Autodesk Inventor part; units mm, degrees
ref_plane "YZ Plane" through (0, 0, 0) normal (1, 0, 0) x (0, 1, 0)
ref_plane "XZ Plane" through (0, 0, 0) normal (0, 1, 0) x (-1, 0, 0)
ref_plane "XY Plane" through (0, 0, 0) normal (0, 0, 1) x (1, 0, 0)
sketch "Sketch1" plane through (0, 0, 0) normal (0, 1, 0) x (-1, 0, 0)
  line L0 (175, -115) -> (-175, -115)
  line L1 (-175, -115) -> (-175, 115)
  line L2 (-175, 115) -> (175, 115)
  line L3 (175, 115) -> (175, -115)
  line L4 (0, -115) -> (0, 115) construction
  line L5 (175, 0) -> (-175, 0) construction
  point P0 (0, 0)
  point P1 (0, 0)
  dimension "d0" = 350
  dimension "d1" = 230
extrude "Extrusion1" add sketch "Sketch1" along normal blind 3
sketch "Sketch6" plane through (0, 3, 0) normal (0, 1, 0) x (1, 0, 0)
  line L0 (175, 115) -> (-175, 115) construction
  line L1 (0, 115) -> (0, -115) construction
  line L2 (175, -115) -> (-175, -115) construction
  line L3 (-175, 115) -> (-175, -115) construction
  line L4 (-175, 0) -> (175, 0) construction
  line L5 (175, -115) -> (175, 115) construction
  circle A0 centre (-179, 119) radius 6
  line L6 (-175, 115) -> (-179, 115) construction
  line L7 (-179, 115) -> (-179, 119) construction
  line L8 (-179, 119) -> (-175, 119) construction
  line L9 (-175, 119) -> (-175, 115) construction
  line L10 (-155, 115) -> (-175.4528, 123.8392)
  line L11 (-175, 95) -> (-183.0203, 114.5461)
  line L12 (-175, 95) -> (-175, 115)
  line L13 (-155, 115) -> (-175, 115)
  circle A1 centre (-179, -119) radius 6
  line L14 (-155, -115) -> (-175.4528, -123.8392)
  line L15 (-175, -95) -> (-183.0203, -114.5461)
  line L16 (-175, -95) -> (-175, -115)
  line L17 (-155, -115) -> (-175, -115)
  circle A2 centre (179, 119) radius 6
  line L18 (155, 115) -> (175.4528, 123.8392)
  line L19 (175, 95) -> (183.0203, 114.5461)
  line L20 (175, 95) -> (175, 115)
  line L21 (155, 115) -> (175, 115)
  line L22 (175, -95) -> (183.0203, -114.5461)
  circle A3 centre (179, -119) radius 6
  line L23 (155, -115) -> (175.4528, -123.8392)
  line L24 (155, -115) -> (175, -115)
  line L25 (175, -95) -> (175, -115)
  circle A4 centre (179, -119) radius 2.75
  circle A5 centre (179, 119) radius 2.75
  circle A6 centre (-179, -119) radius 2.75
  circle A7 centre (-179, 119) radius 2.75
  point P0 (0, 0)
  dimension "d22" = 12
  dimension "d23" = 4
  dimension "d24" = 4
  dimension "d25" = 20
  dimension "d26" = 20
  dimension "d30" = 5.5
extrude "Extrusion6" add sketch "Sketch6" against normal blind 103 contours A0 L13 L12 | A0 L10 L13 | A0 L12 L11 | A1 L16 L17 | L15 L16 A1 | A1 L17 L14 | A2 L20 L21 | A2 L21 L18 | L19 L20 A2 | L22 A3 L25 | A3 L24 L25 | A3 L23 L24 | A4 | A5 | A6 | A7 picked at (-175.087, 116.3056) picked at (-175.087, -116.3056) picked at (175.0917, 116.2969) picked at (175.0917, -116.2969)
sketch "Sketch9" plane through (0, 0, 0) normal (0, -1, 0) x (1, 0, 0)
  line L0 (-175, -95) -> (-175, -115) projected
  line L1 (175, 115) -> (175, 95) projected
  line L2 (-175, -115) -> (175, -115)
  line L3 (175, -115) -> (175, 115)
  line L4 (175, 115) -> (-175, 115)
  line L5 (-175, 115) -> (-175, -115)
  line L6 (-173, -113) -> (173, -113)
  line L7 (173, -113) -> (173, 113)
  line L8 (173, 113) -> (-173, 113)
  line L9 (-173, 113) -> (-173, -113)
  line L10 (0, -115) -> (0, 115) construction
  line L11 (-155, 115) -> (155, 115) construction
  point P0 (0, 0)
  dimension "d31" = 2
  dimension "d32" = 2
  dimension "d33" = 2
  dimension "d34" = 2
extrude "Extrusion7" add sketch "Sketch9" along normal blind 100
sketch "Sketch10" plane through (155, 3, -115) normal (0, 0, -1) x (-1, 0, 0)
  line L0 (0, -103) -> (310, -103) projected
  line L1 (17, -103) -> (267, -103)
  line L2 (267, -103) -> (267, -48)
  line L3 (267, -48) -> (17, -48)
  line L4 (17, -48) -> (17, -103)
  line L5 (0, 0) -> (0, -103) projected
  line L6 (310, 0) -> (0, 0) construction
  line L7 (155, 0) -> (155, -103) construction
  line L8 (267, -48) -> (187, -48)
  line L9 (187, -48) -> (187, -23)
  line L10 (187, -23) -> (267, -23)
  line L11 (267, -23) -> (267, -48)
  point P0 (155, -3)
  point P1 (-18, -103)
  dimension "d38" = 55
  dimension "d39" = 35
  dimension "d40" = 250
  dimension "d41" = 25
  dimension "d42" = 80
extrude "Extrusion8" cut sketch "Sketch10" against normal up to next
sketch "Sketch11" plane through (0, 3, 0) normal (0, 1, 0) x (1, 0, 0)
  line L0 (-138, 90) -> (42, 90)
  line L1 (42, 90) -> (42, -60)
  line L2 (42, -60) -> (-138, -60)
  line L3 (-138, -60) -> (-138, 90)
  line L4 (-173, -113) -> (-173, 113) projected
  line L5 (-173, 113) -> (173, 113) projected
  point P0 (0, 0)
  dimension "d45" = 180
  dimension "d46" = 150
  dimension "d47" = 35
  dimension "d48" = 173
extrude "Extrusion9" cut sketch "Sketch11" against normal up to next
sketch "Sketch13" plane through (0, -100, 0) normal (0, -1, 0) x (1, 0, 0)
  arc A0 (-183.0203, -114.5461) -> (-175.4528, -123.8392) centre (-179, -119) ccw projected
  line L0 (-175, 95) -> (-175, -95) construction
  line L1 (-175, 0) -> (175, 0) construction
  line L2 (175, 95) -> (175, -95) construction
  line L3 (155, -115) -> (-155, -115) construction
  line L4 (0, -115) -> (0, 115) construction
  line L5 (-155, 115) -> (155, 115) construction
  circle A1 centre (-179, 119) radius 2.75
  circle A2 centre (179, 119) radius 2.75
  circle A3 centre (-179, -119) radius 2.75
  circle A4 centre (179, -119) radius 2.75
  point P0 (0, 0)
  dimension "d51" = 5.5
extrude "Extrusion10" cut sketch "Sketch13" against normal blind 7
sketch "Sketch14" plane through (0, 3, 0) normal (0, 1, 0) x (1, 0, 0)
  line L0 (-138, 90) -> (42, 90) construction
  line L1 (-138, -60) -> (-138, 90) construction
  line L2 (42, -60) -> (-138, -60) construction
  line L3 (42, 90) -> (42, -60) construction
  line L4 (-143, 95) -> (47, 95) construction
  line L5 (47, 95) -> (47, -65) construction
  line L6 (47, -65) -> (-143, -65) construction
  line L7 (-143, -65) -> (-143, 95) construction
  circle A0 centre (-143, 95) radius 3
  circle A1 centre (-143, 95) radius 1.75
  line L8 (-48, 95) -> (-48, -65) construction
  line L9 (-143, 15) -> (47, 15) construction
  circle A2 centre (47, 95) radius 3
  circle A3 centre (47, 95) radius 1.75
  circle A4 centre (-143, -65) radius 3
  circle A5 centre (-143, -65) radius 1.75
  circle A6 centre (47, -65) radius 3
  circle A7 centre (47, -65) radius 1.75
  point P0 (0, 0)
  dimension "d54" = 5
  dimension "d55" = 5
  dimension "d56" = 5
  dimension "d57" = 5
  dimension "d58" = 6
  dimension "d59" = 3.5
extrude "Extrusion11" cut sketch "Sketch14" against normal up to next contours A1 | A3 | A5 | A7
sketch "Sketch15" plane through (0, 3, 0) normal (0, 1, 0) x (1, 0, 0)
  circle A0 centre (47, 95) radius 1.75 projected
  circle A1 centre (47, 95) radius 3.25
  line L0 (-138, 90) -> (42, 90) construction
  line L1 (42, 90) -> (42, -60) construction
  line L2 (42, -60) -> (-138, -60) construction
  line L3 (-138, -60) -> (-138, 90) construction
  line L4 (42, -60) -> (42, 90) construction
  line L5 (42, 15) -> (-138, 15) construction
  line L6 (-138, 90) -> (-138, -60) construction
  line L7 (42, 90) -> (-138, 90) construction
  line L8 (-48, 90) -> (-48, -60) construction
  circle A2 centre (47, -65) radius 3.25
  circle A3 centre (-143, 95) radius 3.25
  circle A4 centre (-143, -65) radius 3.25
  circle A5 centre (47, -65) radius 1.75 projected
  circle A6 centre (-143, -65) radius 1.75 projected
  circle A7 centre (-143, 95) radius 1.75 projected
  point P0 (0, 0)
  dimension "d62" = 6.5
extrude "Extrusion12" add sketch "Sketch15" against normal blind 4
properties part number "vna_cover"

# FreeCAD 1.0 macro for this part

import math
import FreeCAD as App
import Part
import Sketcher
Q = App.Units.Quantity

doc = App.newDocument("Part")
body = doc.addObject("PartDesign::Body", "Body")

# Sketch on XZ plane
sketch1 = body.newObject("Sketcher::SketchObject", "Sketch")
sketch1.AttachmentSupport = (doc.getObject("XZ_Plane"), [""])
sketch1.MapMode = "FlatFace"
sketch1.addGeometry([
    Part.LineSegment(App.Vector(175, -115, 0), App.Vector(-175, -115, 0)),
    Part.LineSegment(App.Vector(-175, -115, 0), App.Vector(-175, 115, 0)),
    Part.LineSegment(App.Vector(-175, 115, 0), App.Vector(175, 115, 0)),
    Part.LineSegment(App.Vector(175, 115, 0), App.Vector(175, -115, 0)),
], False)
sketch1.addConstraint([
    Sketcher.Constraint("Coincident", 0, 2, 1, 1),
    Sketcher.Constraint("Coincident", 1, 2, 2, 1),
    Sketcher.Constraint("Coincident", 2, 2, 3, 1),
    Sketcher.Constraint("Coincident", 3, 2, 0, 1),
    Sketcher.Constraint("Horizontal", 0),
    Sketcher.Constraint("Vertical", 1),
    Sketcher.Constraint("Horizontal", 2),
    Sketcher.Constraint("Vertical", 3),
    Sketcher.Constraint("Symmetric", 0, 2, 2, 2, -1, 1),
    Sketcher.Constraint("DistanceX", 0, 2, 0, 1, Q("350 mm")),
    Sketcher.Constraint("DistanceY", 1, 1, 1, 2, Q("230 mm")),
])
pad1 = body.newObject("PartDesign::Pad", "Pad")
pad1.Profile = sketch1
pad1.Length = 3
pad1.Reversed = True

# Sketch on XZ plane
sketch2 = body.newObject("Sketcher::SketchObject", "Sketch001")
sketch2.AttachmentSupport = (doc.getObject("XZ_Plane"), [""])
sketch2.MapMode = "FlatFace"
sketch2.AttachmentOffset = App.Placement(App.Vector(0, 0, -3), App.Rotation())
sketch2.addGeometry([
    Part.LineSegment(App.Vector(-175, -115, 0), App.Vector(-155, -115, 0)),  # 0
    Part.LineSegment(App.Vector(-155, -115, 0), App.Vector(-175.4528, -123.8392, 0)),  # 1
    Part.ArcOfCircle(Part.Circle(App.Vector(-179, -119, 0), App.Vector(0, 0, 1), 6), math.radians(132.070897), math.radians(306.241928)),  # 2
    Part.LineSegment(App.Vector(-183.0203, -114.5461, 0), App.Vector(-175, -95, 0)),  # 3
    Part.LineSegment(App.Vector(-175, -95, 0), App.Vector(-175, -115, 0)),  # 4
    Part.LineSegment(App.Vector(-175, 115, 0), App.Vector(-175, 95, 0)),  # 5
    Part.LineSegment(App.Vector(-175, 95, 0), App.Vector(-183.0203, 114.5461, 0)),  # 6
    Part.ArcOfCircle(Part.Circle(App.Vector(-179, 119, 0), App.Vector(0, 0, 1), 6), math.radians(53.758072), math.radians(227.929103)),  # 7
    Part.LineSegment(App.Vector(-175.4528, 123.8392, 0), App.Vector(-155, 115, 0)),  # 8
    Part.LineSegment(App.Vector(-155, 115, 0), App.Vector(-175, 115, 0)),  # 9
    Part.ArcOfCircle(Part.Circle(App.Vector(179, -119, 0), App.Vector(0, 0, 1), 6), math.radians(-126.241928), math.radians(47.929103)),  # 10
    Part.LineSegment(App.Vector(175.4528, -123.8392, 0), App.Vector(155, -115, 0)),  # 11
    Part.LineSegment(App.Vector(155, -115, 0), App.Vector(175, -115, 0)),  # 12
    Part.LineSegment(App.Vector(175, -115, 0), App.Vector(175, -95, 0)),  # 13
    Part.LineSegment(App.Vector(175, -95, 0), App.Vector(183.0203, -114.5461, 0)),  # 14
    Part.LineSegment(App.Vector(183.0203, 114.5461, 0), App.Vector(175, 95, 0)),  # 15
    Part.LineSegment(App.Vector(175, 95, 0), App.Vector(175, 115, 0)),  # 16
    Part.LineSegment(App.Vector(175, 115, 0), App.Vector(155, 115, 0)),  # 17
    Part.LineSegment(App.Vector(155, 115, 0), App.Vector(175.4528, 123.8392, 0)),  # 18
    Part.ArcOfCircle(Part.Circle(App.Vector(179, 119, 0), App.Vector(0, 0, 1), 6), math.radians(-47.929103), math.radians(126.241928)),  # 19
], False)
sketch2.addConstraint([
    Sketcher.Constraint("Coincident", 0, 2, 1, 1),
    Sketcher.Constraint("Coincident", 1, 2, 2, 2),
    Sketcher.Constraint("Coincident", 2, 1, 3, 1),
    Sketcher.Constraint("Coincident", 3, 2, 4, 1),
    Sketcher.Constraint("Coincident", 4, 2, 0, 1),
    Sketcher.Constraint("Coincident", 5, 2, 6, 1),
    Sketcher.Constraint("Coincident", 6, 2, 7, 2),
    Sketcher.Constraint("Coincident", 7, 1, 8, 1),
    Sketcher.Constraint("Coincident", 8, 2, 9, 1),
    Sketcher.Constraint("Coincident", 9, 2, 5, 1),
    Sketcher.Constraint("Coincident", 10, 1, 11, 1),
    Sketcher.Constraint("Coincident", 11, 2, 12, 1),
    Sketcher.Constraint("Coincident", 12, 2, 13, 1),
    Sketcher.Constraint("Coincident", 13, 2, 14, 1),
    Sketcher.Constraint("Coincident", 14, 2, 10, 2),
    Sketcher.Constraint("Coincident", 15, 2, 16, 1),
    Sketcher.Constraint("Coincident", 16, 2, 17, 1),
    Sketcher.Constraint("Coincident", 17, 2, 18, 1),
    Sketcher.Constraint("Coincident", 18, 2, 19, 2),
    Sketcher.Constraint("Coincident", 19, 1, 15, 1),
    Sketcher.Constraint("Horizontal", 0),
    Sketcher.Constraint("Vertical", 4),
    Sketcher.Constraint("Vertical", 5),
    Sketcher.Constraint("Horizontal", 9),
    Sketcher.Constraint("Horizontal", 12),
    Sketcher.Constraint("Vertical", 13),
    Sketcher.Constraint("Vertical", 16),
    Sketcher.Constraint("Horizontal", 17),
    Sketcher.Constraint("Equal", 2, 7),
    Sketcher.Constraint("Equal", 7, 10),
    Sketcher.Constraint("Equal", 10, 19),
    Sketcher.Constraint("Symmetric", 7, 3, 10, 3, -1, 1),
    Sketcher.Constraint("Symmetric", 2, 3, 19, 3, -1, 1),
    Sketcher.Constraint("Symmetric", 8, 2, 11, 2, -1, 1),
    Sketcher.Constraint("Symmetric", 5, 2, 13, 2, -1, 1),
    Sketcher.Constraint("Symmetric", 3, 2, 15, 2, -1, 1),
    Sketcher.Constraint("Symmetric", 0, 2, 17, 2, -1, 1),
    Sketcher.Constraint("Symmetric", 2, 3, 10, 3, -2),
    Sketcher.Constraint("Symmetric", 0, 2, 11, 2, -2),
    Sketcher.Constraint("Symmetric", 3, 2, 13, 2, -2),
    Sketcher.Constraint("Parallel", 8, 11),
    Sketcher.Constraint("Parallel", 6, 14),
    Sketcher.Constraint("Parallel", 3, 15),
    Sketcher.Constraint("Parallel", 1, 18),
    Sketcher.Constraint("Horizontal", 1, 2, 10, 1),
    Sketcher.Constraint("Horizontal", 2, 1, 14, 2),
    Sketcher.Constraint("Equal", 17, 4),
    Sketcher.Constraint("Radius", 2, Q("6 mm")),
    Sketcher.Constraint("DistanceX", 0, 1, 0, 2, Q("20 mm")),
    Sketcher.Constraint("DistanceY", 2, 3, 0, 2, Q("4 mm")),
    Sketcher.Constraint("DistanceX", 2, 3, 3, 2, Q("4 mm")),
    Sketcher.Constraint("DistanceX", 2, 3, -1, 1, Q("179 mm")),
    Sketcher.Constraint("DistanceY", 2, 3, -1, 1, Q("119 mm")),
    Sketcher.Constraint("Angle", 3, Q("67.6903 deg")),
    Sketcher.Constraint("DistanceY", 1, 2, 2, 1, Q("9.293 mm")),
])
pad2 = body.newObject("PartDesign::Pad", "Pad001")
pad2.Profile = sketch2
pad2.Length = 103

# Sketch on XZ plane
sketch3 = body.newObject("Sketcher::SketchObject", "Sketch002")
sketch3.AttachmentSupport = (doc.getObject("XZ_Plane"), [""])
sketch3.MapMode = "FlatFace"
sketch3.addGeometry([
    Part.LineSegment(App.Vector(-175, 115, 0), App.Vector(-175, -115, 0)),  # 0
    Part.LineSegment(App.Vector(-175, -115, 0), App.Vector(175, -115, 0)),  # 1
    Part.LineSegment(App.Vector(175, -115, 0), App.Vector(175, 115, 0)),  # 2
    Part.LineSegment(App.Vector(175, 115, 0), App.Vector(-175, 115, 0)),  # 3
    Part.LineSegment(App.Vector(173, -113, 0), App.Vector(-173, -113, 0)),  # 4
    Part.LineSegment(App.Vector(-173, -113, 0), App.Vector(-173, 113, 0)),  # 5
    Part.LineSegment(App.Vector(-173, 113, 0), App.Vector(173, 113, 0)),  # 6
    Part.LineSegment(App.Vector(173, 113, 0), App.Vector(173, -113, 0)),  # 7
], False)
sketch3.addConstraint([
    Sketcher.Constraint("Coincident", 0, 2, 1, 1),
    Sketcher.Constraint("Coincident", 1, 2, 2, 1),
    Sketcher.Constraint("Coincident", 2, 2, 3, 1),
    Sketcher.Constraint("Coincident", 3, 2, 0, 1),
    Sketcher.Constraint("Coincident", 4, 2, 5, 1),
    Sketcher.Constraint("Coincident", 5, 2, 6, 1),
    Sketcher.Constraint("Coincident", 6, 2, 7, 1),
    Sketcher.Constraint("Coincident", 7, 2, 4, 1),
    Sketcher.Constraint("Vertical", 0),
    Sketcher.Constraint("Horizontal", 1),
    Sketcher.Constraint("Vertical", 2),
    Sketcher.Constraint("Horizontal", 3),
    Sketcher.Constraint("Horizontal", 4),
    Sketcher.Constraint("Vertical", 5),
    Sketcher.Constraint("Horizontal", 6),
    Sketcher.Constraint("Vertical", 7),
    Sketcher.Constraint("Symmetric", 0, 2, 2, 2, -1, 1),
    Sketcher.Constraint("Symmetric", 4, 2, 6, 2, -1, 1),
    Sketcher.Constraint("DistanceX", 0, 2, 4, 2, Q("2 mm")),
    Sketcher.Constraint("DistanceY", 0, 2, 4, 2, Q("2 mm")),
    Sketcher.Constraint("DistanceX", 1, 1, 1, 2, Q("350 mm")),
    Sketcher.Constraint("DistanceY", 0, 2, 0, 1, Q("230 mm")),
])
pad3 = body.newObject("PartDesign::Pad", "Pad002")
pad3.Profile = sketch3
pad3.Length = 100

# Sketch on XY plane
sketch4 = body.newObject("Sketcher::SketchObject", "Sketch003")
sketch4.AttachmentSupport = (doc.getObject("XY_Plane"), [""])
sketch4.MapMode = "FlatFace"
sketch4.AttachmentOffset = App.Placement(App.Vector(0, 0, -115), App.Rotation())
sketch4.addGeometry([
    Part.LineSegment(App.Vector(138, -45, 0), App.Vector(138, -100, 0)),  # 0
    Part.LineSegment(App.Vector(138, -100, 0), App.Vector(-112, -100, 0)),  # 1
    Part.LineSegment(App.Vector(-112, -100, 0), App.Vector(-112, -20, 0)),  # 2
    Part.LineSegment(App.Vector(-112, -20, 0), App.Vector(-32, -20, 0)),  # 3
    Part.LineSegment(App.Vector(-32, -20, 0), App.Vector(-32, -45, 0)),  # 4
    Part.LineSegment(App.Vector(-32, -45, 0), App.Vector(138, -45, 0)),  # 5
], False)
sketch4.addConstraint([
    Sketcher.Constraint("Coincident", 0, 2, 1, 1),
    Sketcher.Constraint("Coincident", 1, 2, 2, 1),
    Sketcher.Constraint("Coincident", 2, 2, 3, 1),
    Sketcher.Constraint("Coincident", 3, 2, 4, 1),
    Sketcher.Constraint("Coincident", 4, 2, 5, 1),
    Sketcher.Constraint("Coincident", 5, 2, 0, 1),
    Sketcher.Constraint("Vertical", 0),
    Sketcher.Constraint("Horizontal", 1),
    Sketcher.Constraint("Vertical", 2),
    Sketcher.Constraint("Horizontal", 3),
    Sketcher.Constraint("Vertical", 4),
    Sketcher.Constraint("Horizontal", 5),
    Sketcher.Constraint("Equal", 3, 2),
    Sketcher.Constraint("DistanceX", 1, 2, 1, 1, Q("250 mm")),
    Sketcher.Constraint("DistanceX", 3, 1, 3, 2, Q("80 mm")),
    Sketcher.Constraint("DistanceY", 0, 2, 0, 1, Q("55 mm")),
    Sketcher.Constraint("DistanceX", -1, 1, 0, 2, Q("138 mm")),
    Sketcher.Constraint("DistanceY", 0, 2, -1, 1, Q("100 mm")),
])
pocket1 = body.newObject("PartDesign::Pocket", "Pocket")
pocket1.Profile = sketch4
pocket1.Type = "UpToFirst"
pocket1.Reversed = True

# Sketch on XZ plane
sketch5 = body.newObject("Sketcher::SketchObject", "Sketch004")
sketch5.AttachmentSupport = (doc.getObject("XZ_Plane"), [""])
sketch5.MapMode = "FlatFace"
sketch5.AttachmentOffset = App.Placement(App.Vector(0, 0, -3), App.Rotation())
sketch5.addGeometry([
    Part.LineSegment(App.Vector(42, -90, 0), App.Vector(-138, -90, 0)),
    Part.LineSegment(App.Vector(-138, -90, 0), App.Vector(-138, 60, 0)),
    Part.LineSegment(App.Vector(-138, 60, 0), App.Vector(42, 60, 0)),
    Part.LineSegment(App.Vector(42, 60, 0), App.Vector(42, -90, 0)),
], False)
sketch5.addConstraint([
    Sketcher.Constraint("Coincident", 0, 2, 1, 1),
    Sketcher.Constraint("Coincident", 1, 2, 2, 1),
    Sketcher.Constraint("Coincident", 2, 2, 3, 1),
    Sketcher.Constraint("Coincident", 3, 2, 0, 1),
    Sketcher.Constraint("Horizontal", 0),
    Sketcher.Constraint("Vertical", 1),
    Sketcher.Constraint("Horizontal", 2),
    Sketcher.Constraint("Vertical", 3),
    Sketcher.Constraint("DistanceX", 0, 2, 0, 1, Q("180 mm")),
    Sketcher.Constraint("DistanceY", 1, 1, 1, 2, Q("150 mm")),
    Sketcher.Constraint("DistanceX", 0, 2, -1, 1, Q("138 mm")),
    Sketcher.Constraint("DistanceY", 0, 2, -1, 1, Q("90 mm")),
])
pocket2 = body.newObject("PartDesign::Pocket", "Pocket001")
pocket2.Profile = sketch5
pocket2.Type = "UpToFirst"
pocket2.Reversed = True

# Sketch on XZ plane
sketch6 = body.newObject("Sketcher::SketchObject", "Sketch005")
sketch6.AttachmentSupport = (doc.getObject("XZ_Plane"), [""])
sketch6.MapMode = "FlatFace"
sketch6.AttachmentOffset = App.Placement(App.Vector(0, 0, 100), App.Rotation())
sketch6.addGeometry([
    Part.Circle(App.Vector(-179, 119, 0), App.Vector(0, 0, 1), 2.75),
    Part.Circle(App.Vector(179, 119, 0), App.Vector(0, 0, 1), 2.75),
    Part.Circle(App.Vector(-179, -119, 0), App.Vector(0, 0, 1), 2.75),
    Part.Circle(App.Vector(179, -119, 0), App.Vector(0, 0, 1), 2.75),
], False)
sketch6.addConstraint([
    Sketcher.Constraint("Equal", 0, 1),
    Sketcher.Constraint("Equal", 1, 2),
    Sketcher.Constraint("Equal", 2, 3),
    Sketcher.Constraint("Symmetric", 1, 3, 2, 3, -1, 1),
    Sketcher.Constraint("Symmetric", 0, 3, 3, 3, -1, 1),
    Sketcher.Constraint("Symmetric", 0, 3, 1, 3, -2),
    Sketcher.Constraint("Diameter", 0, Q("5.5 mm")),
    Sketcher.Constraint("DistanceX", 0, 3, -1, 1, Q("179 mm")),
    Sketcher.Constraint("DistanceY", -1, 1, 0, 3, Q("119 mm")),
])
pocket3 = body.newObject("PartDesign::Pocket", "Pocket002")
pocket3.Profile = sketch6
pocket3.Length = 7

# Sketch on XZ plane
sketch7 = body.newObject("Sketcher::SketchObject", "Sketch006")
sketch7.AttachmentSupport = (doc.getObject("XZ_Plane"), [""])
sketch7.MapMode = "FlatFace"
sketch7.AttachmentOffset = App.Placement(App.Vector(0, 0, -3), App.Rotation())
sketch7.addGeometry([
    Part.Circle(App.Vector(-143, -95, 0), App.Vector(0, 0, 1), 1.75),
    Part.Circle(App.Vector(47, -95, 0), App.Vector(0, 0, 1), 1.75),
    Part.Circle(App.Vector(-143, 65, 0), App.Vector(0, 0, 1), 1.75),
    Part.Circle(App.Vector(47, 65, 0), App.Vector(0, 0, 1), 1.75),
], False)
sketch7.addConstraint([
    Sketcher.Constraint("Equal", 0, 1),
    Sketcher.Constraint("Equal", 1, 2),
    Sketcher.Constraint("Equal", 2, 3),
    Sketcher.Constraint("Horizontal", 0, 3, 1, 3),
    Sketcher.Constraint("Horizontal", 2, 3, 3, 3),
    Sketcher.Constraint("Vertical", 0, 3, 2, 3),
    Sketcher.Constraint("Vertical", 1, 3, 3, 3),
    Sketcher.Constraint("Diameter", 0, Q("3.5 mm")),
    Sketcher.Constraint("DistanceX", 0, 3, -1, 1, Q("143 mm")),
    Sketcher.Constraint("DistanceY", 0, 3, -1, 1, Q("95 mm")),
    Sketcher.Constraint("DistanceX", -1, 1, 1, 3, Q("47 mm")),
    Sketcher.Constraint("DistanceY", -1, 1, 2, 3, Q("65 mm")),
])
pocket4 = body.newObject("PartDesign::Pocket", "Pocket003")
pocket4.Profile = sketch7
pocket4.Length = 3
pocket4.Reversed = True

# Sketch on XZ plane
sketch8 = body.newObject("Sketcher::SketchObject", "Sketch007")
sketch8.AttachmentSupport = (doc.getObject("XZ_Plane"), [""])
sketch8.MapMode = "FlatFace"
sketch8.AttachmentOffset = App.Placement(App.Vector(0, 0, -3), App.Rotation())
sketch8.addGeometry([
    Part.Circle(App.Vector(47, -95, 0), App.Vector(0, 0, 1), 3.25),  # 0
    Part.Circle(App.Vector(47, -95, 0), App.Vector(0, 0, 1), 1.75),  # 1
    Part.Circle(App.Vector(47, 65, 0), App.Vector(0, 0, 1), 3.25),  # 2
    Part.Circle(App.Vector(47, 65, 0), App.Vector(0, 0, 1), 1.75),  # 3
    Part.Circle(App.Vector(-143, -95, 0), App.Vector(0, 0, 1), 3.25),  # 4
    Part.Circle(App.Vector(-143, -95, 0), App.Vector(0, 0, 1), 1.75),  # 5
    Part.Circle(App.Vector(-143, 65, 0), App.Vector(0, 0, 1), 3.25),  # 6
    Part.Circle(App.Vector(-143, 65, 0), App.Vector(0, 0, 1), 1.75),  # 7
], False)
sketch8.addConstraint([
    Sketcher.Constraint("Coincident", 1, 3, 0, 3),
    Sketcher.Constraint("Coincident", 3, 3, 2, 3),
    Sketcher.Constraint("Coincident", 5, 3, 4, 3),
    Sketcher.Constraint("Coincident", 7, 3, 6, 3),
    Sketcher.Constraint("Equal", 0, 2),
    Sketcher.Constraint("Equal", 1, 3),
    Sketcher.Constraint("Equal", 2, 4),
    Sketcher.Constraint("Equal", 3, 5),
    Sketcher.Constraint("Equal", 4, 6),
    Sketcher.Constraint("Equal", 5, 7),
    Sketcher.Constraint("Horizontal", 1, 3, 4, 3),
    Sketcher.Constraint("Horizontal", 3, 3, 6, 3),
    Sketcher.Constraint("Vertical", 1, 3, 2, 3),
    Sketcher.Constraint("Vertical", 5, 3, 6, 3),
    Sketcher.Constraint("Diameter", 0, Q("6.5 mm")),
    Sketcher.Constraint("Diameter", 1, Q("3.5 mm")),
    Sketcher.Constraint("DistanceX", -1, 1, 0, 3, Q("47 mm")),
    Sketcher.Constraint("DistanceY", 0, 3, -1, 1, Q("95 mm")),
    Sketcher.Constraint("DistanceY", -1, 1, 2, 3, Q("65 mm")),
    Sketcher.Constraint("DistanceX", 4, 3, -1, 1, Q("143 mm")),
])
pad4 = body.newObject("PartDesign::Pad", "Pad003")
pad4.Profile = sketch8
pad4.Length = 4

doc.recompute()
